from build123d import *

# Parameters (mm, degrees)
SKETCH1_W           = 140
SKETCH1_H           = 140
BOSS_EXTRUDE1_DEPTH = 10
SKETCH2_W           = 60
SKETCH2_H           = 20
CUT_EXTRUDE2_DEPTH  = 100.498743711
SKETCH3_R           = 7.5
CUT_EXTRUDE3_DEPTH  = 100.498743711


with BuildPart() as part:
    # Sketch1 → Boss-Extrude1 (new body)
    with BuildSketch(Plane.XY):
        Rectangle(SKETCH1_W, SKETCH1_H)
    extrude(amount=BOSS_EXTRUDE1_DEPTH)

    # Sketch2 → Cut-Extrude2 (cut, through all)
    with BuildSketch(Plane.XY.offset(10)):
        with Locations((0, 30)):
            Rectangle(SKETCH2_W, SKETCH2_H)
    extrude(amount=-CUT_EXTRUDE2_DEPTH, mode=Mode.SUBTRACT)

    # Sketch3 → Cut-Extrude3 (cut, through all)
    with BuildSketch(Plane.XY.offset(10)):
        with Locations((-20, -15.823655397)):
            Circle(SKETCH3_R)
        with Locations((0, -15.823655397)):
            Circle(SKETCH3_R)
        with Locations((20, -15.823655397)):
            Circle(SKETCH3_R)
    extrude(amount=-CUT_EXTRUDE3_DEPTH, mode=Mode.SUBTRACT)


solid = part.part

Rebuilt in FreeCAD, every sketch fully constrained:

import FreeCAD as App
import Part
import Sketcher
from FreeCAD import Vector
Q = App.Units.Quantity

doc = App.newDocument("Part")
params = doc.addObject("Spreadsheet::Sheet", "Params")
for row, (alias, value) in enumerate([
    ("sketch1_width", "140 mm"),
    ("pad1_length", "10 mm"),
    ("sketch2_width", "60 mm"),
    ("sketch2_height", "20 mm"),
    ("sketch3_diameter", "15 mm"),
], start=1):
    params.set(f"A{row}", alias)
    params.set(f"B{row}", "=" + value)
    params.setAlias(f"B{row}", alias)

body = doc.addObject("PartDesign::Body", "Body")

sketch1 = doc.addObject("Sketcher::SketchObject", "Sketch")
body.addObject(sketch1)
sketch1.AttachmentSupport = (doc.XY_Plane, [""])
sketch1.MapMode = "FlatFace"
sketch1.addGeometry(Part.LineSegment(Vector(-70, 70, 0), Vector(-70, -70, 0)), False)
sketch1.addGeometry(Part.LineSegment(Vector(-70, -70, 0), Vector(70, -70, 0)), False)
sketch1.addGeometry(Part.LineSegment(Vector(70, -70, 0), Vector(70, 70, 0)), False)
sketch1.addGeometry(Part.LineSegment(Vector(70, 70, 0), Vector(-70, 70, 0)), False)
sketch1.addConstraint(Sketcher.Constraint("Coincident", 0, 2, 1, 1))
sketch1.addConstraint(Sketcher.Constraint("Coincident", 1, 2, 2, 1))
sketch1.addConstraint(Sketcher.Constraint("Coincident", 2, 2, 3, 1))
sketch1.addConstraint(Sketcher.Constraint("Coincident", 3, 2, 0, 1))
sketch1.addConstraint(Sketcher.Constraint("Vertical", 0))
sketch1.addConstraint(Sketcher.Constraint("Horizontal", 1))
sketch1.addConstraint(Sketcher.Constraint("Vertical", 2))
sketch1.addConstraint(Sketcher.Constraint("Horizontal", 3))
sketch1.addConstraint(Sketcher.Constraint("Symmetric", 0, 2, 2, 2, -1, 1))
sketch1.addConstraint(Sketcher.Constraint("Equal", 3, 0))
sketch1.addConstraint(Sketcher.Constraint("DistanceX", 1, 1, 1, 2, Q("140 mm")))
sketch1.setExpression("Constraints[10]", "Params.sketch1_width")
pad1 = doc.addObject("PartDesign::Pad", "Pad")
body.addObject(pad1)
pad1.Profile = sketch1
pad1.setExpression("Length", "Params.pad1_length")

sketch2 = doc.addObject("Sketcher::SketchObject", "Sketch001")
body.addObject(sketch2)
sketch2.AttachmentSupport = (doc.XY_Plane, [""])
sketch2.MapMode = "FlatFace"
sketch2.AttachmentOffset = App.Placement(Vector(0, 0, 10), App.Rotation())
sketch2.addGeometry(Part.LineSegment(Vector(-30, 40, 0), Vector(-30, 20, 0)), False)
sketch2.addGeometry(Part.LineSegment(Vector(-30, 20, 0), Vector(30, 20, 0)), False)
sketch2.addGeometry(Part.LineSegment(Vector(30, 20, 0), Vector(30, 40, 0)), False)
sketch2.addGeometry(Part.LineSegment(Vector(30, 40, 0), Vector(-30, 40, 0)), False)
sketch2.addConstraint(Sketcher.Constraint("Coincident", 0, 2, 1, 1))
sketch2.addConstraint(Sketcher.Constraint("Coincident", 1, 2, 2, 1))
sketch2.addConstraint(Sketcher.Constraint("Coincident", 2, 2, 3, 1))
sketch2.addConstraint(Sketcher.Constraint("Coincident", 3, 2, 0, 1))
sketch2.addConstraint(Sketcher.Constraint("Vertical", 0))
sketch2.addConstraint(Sketcher.Constraint("Horizontal", 1))
sketch2.addConstraint(Sketcher.Constraint("Vertical", 2))
sketch2.addConstraint(Sketcher.Constraint("Horizontal", 3))
sketch2.addConstraint(Sketcher.Constraint("DistanceX", 1, 1, 1, 2, Q("60 mm")))
sketch2.addConstraint(Sketcher.Constraint("DistanceY", 0, 2, 0, 1, Q("20 mm")))
sketch2.addConstraint(Sketcher.Constraint("DistanceX", 0, 2, -1, 1, Q("30 mm")))
sketch2.addConstraint(Sketcher.Constraint("DistanceY", -1, 1, 0, 2, Q("20 mm")))
sketch2.setExpression("Constraints[8]", "Params.sketch2_width")
sketch2.setExpression("Constraints[9]", "Params.sketch2_height")
pocket1 = doc.addObject("PartDesign::Pocket", "Pocket")
body.addObject(pocket1)
pocket1.Profile = sketch2
pocket1.Type = "ThroughAll"

sketch3 = doc.addObject("Sketcher::SketchObject", "Sketch002")
body.addObject(sketch3)
sketch3.AttachmentSupport = (doc.XY_Plane, [""])
sketch3.MapMode = "FlatFace"
sketch3.AttachmentOffset = App.Placement(Vector(0, 0, 10), App.Rotation())
sketch3.addGeometry(Part.Circle(Vector(-20, -16, 0), Vector(0, 0, 1), 8), False)
sketch3.addGeometry(Part.Circle(Vector(0, -16, 0), Vector(0, 0, 1), 8), False)
sketch3.addGeometry(Part.Circle(Vector(20, -16, 0), Vector(0, 0, 1), 8), False)
sketch3.addConstraint(Sketcher.Constraint("Equal", 0, 1))
sketch3.addConstraint(Sketcher.Constraint("Equal", 1, 2))
sketch3.addConstraint(Sketcher.Constraint("Symmetric", 0, 3, 2, 3, -2))
sketch3.addConstraint(Sketcher.Constraint("PointOnObject", 1, 3, -2))
sketch3.addConstraint(Sketcher.Constraint("Horizontal", 0, 3, 1, 3))
sketch3.addConstraint(Sketcher.Constraint("Diameter", 0, Q("15 mm")))
sketch3.addConstraint(Sketcher.Constraint("DistanceX", 0, 3, -1, 1, Q("20 mm")))
sketch3.addConstraint(Sketcher.Constraint("DistanceY", 0, 3, -1, 1, Q("15.823655 mm")))
sketch3.setExpression("Constraints[5]", "Params.sketch3_diameter")
pocket2 = doc.addObject("PartDesign::Pocket", "Pocket001")
body.addObject(pocket2)
pocket2.Profile = sketch3
pocket2.Type = "ThroughAll"

doc.recompute()
